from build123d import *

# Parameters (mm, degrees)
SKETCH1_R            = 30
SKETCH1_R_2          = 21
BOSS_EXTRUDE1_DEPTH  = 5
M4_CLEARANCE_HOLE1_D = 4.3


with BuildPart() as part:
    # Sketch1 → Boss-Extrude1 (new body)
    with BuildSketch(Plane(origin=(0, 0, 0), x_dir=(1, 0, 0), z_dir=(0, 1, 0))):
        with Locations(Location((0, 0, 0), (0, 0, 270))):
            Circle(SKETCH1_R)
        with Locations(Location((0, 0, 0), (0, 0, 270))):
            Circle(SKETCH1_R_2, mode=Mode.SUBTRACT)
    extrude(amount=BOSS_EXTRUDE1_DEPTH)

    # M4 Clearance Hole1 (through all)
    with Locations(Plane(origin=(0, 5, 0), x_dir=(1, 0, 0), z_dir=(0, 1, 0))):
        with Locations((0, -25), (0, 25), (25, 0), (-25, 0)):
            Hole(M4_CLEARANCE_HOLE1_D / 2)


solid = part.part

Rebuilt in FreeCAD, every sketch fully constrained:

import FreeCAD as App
import Part
import Sketcher

V = App.Vector
Q = App.Units.Quantity

doc = App.newDocument("Part")
params = doc.addObject("Spreadsheet::Sheet", "Params")
for row, (alias, value) in enumerate([
    ("sketch1_diameter", "60 mm"),
    ("sketch1_diameter2", "42 mm"),
    ("pad1_length", "5 mm"),
    ("sketch2_diameter", "4.3 mm"),
    ("hole_diameter", "4.3 mm"),
], start=1):
    params.set(f"A{row}", alias)
    params.set(f"B{row}", "=" + value)
    params.setAlias(f"B{row}", alias)

body = doc.addObject("PartDesign::Body", "Body")

# Sketch on XZ plane
sketch1 = body.newObject("Sketcher::SketchObject", "Sketch")
sketch1.AttachmentSupport = (doc.getObject("XZ_Plane"), [""])
sketch1.MapMode = "FlatFace"
sketch1.addGeometry([
    Part.Circle(V(0, 0, 0), V(0, 0, 1), 30),
    Part.Circle(V(0, 0, 0), V(0, 0, 1), 21),
], False)
sketch1.addConstraint([
    Sketcher.Constraint("Coincident", 0, 3, -1, 1),
    Sketcher.Constraint("Coincident", 1, 3, -1, 1),
    Sketcher.Constraint("Diameter", 0, Q("60 mm")),
    Sketcher.Constraint("Diameter", 1, Q("42 mm")),
])
sketch1.setExpression("Constraints[2]", "Params.sketch1_diameter")
sketch1.setExpression("Constraints[3]", "Params.sketch1_diameter2")
pad1 = body.newObject("PartDesign::Pad", "Pad")
pad1.Profile = sketch1
pad1.setExpression("Length", "Params.pad1_length")
pad1.Reversed = True

# Sketch on XZ plane
sketch2 = body.newObject("Sketcher::SketchObject", "Sketch001")
sketch2.AttachmentSupport = (doc.getObject("XZ_Plane"), [""])
sketch2.MapMode = "FlatFace"
sketch2.AttachmentOffset = App.Placement(V(0, 0, -5), App.Rotation())
sketch2.addGeometry([
    Part.Circle(V(0, 25, 0), V(0, 0, 1), 2.1),
    Part.Circle(V(0, -25, 0), V(0, 0, 1), 2.1),
    Part.Circle(V(25, 0, 0), V(0, 0, 1), 2.1),
    Part.Circle(V(-25, 0, 0), V(0, 0, 1), 2.1),
], False)
sketch2.addConstraint([
    Sketcher.Constraint("Equal", 0, 1),
    Sketcher.Constraint("Equal", 1, 2),
    Sketcher.Constraint("Equal", 2, 3),
    Sketcher.Constraint("Symmetric", 0, 3, 1, 3, -1, 1),
    Sketcher.Constraint("Symmetric", 2, 3, 3, 3, -1, 1),
    Sketcher.Constraint("PointOnObject", 0, 3, -2),
    Sketcher.Constraint("PointOnObject", 2, 3, -1),
    Sketcher.Constraint("Diameter", 0, Q("4.3 mm")),
    Sketcher.Constraint("DistanceY", -1, 1, 0, 3, Q("25 mm")),
    Sketcher.Constraint("DistanceX", -1, 1, 2, 3, Q("25 mm")),
])
sketch2.setExpression("Constraints[7]", "Params.sketch2_diameter")
doc.recompute()
hole = body.newObject("PartDesign::Hole", "Hole")
hole.Profile = sketch2
hole.ThreadType = "None"
hole.setExpression("Diameter", "Params.hole_diameter")
hole.DepthType = "ThroughAll"
hole.Reversed = True

doc.recompute()
